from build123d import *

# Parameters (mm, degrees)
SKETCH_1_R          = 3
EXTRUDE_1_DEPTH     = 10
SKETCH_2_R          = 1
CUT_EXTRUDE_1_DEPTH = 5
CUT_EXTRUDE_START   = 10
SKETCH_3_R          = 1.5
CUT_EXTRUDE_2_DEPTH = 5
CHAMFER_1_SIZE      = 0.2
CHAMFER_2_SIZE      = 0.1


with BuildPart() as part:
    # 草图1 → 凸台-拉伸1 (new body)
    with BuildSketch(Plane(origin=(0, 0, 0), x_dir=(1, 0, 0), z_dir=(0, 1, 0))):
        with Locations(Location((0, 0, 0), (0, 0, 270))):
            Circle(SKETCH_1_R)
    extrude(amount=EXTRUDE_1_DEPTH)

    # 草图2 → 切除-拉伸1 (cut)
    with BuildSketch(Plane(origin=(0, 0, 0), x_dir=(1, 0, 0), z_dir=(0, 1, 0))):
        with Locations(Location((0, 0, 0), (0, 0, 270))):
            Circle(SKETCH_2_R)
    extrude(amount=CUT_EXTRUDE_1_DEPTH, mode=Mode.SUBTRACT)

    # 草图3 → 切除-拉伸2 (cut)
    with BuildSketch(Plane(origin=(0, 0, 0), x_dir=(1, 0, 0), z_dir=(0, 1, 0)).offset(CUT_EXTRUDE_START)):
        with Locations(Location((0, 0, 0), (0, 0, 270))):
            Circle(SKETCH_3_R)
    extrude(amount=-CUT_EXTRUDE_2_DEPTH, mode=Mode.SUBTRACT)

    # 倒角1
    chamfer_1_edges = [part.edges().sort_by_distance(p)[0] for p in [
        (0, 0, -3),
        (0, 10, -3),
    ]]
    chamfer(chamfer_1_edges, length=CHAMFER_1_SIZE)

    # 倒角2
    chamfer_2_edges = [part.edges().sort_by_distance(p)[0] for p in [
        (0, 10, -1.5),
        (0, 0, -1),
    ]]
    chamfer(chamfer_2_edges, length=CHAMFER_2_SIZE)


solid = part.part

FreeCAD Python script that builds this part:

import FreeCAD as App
import Part
import Sketcher


def edges_at(feature, points):
    """Names of the edges that pass closest to the given points."""
    edges = feature.Shape.Edges
    near = lambda p: min(range(len(edges)), key=lambda i: edges[i].distToShape(Part.Vertex(*p))[0])
    return sorted({f"Edge{near(p) + 1}" for p in points})

doc = App.newDocument("Part")
body = doc.addObject("PartDesign::Body", "Body")

# Sketch on XZ plane
sketch1 = body.newObject("Sketcher::SketchObject", "Sketch")
sketch1.AttachmentSupport = (doc.getObject("XZ_Plane"), [""])
sketch1.MapMode = "FlatFace"
sketch1.addGeometry(Part.Circle(App.Vector(0, 0, 0), App.Vector(0, 0, 1), 3), False)
sketch1.addConstraint(Sketcher.Constraint("Coincident", 0, 3, -1, 1))
sketch1.addConstraint(Sketcher.Constraint("Diameter", 0, 6.0))
pad1 = body.newObject("PartDesign::Pad", "Pad")
pad1.Profile = sketch1
pad1.Length = 10
pad1.Reversed = True

# Sketch on XZ plane
sketch2 = body.newObject("Sketcher::SketchObject", "Sketch001")
sketch2.AttachmentSupport = (doc.getObject("XZ_Plane"), [""])
sketch2.MapMode = "FlatFace"
sketch2.addGeometry(Part.Circle(App.Vector(0, 0, 0), App.Vector(0, 0, 1), 1), False)
sketch2.addConstraint(Sketcher.Constraint("Coincident", 0, 3, -1, 1))
sketch2.addConstraint(Sketcher.Constraint("Diameter", 0, 2.0))
pocket1 = body.newObject("PartDesign::Pocket", "Pocket")
pocket1.Profile = sketch2
pocket1.Length = 5

# Sketch on XZ plane
sketch3 = body.newObject("Sketcher::SketchObject", "Sketch002")
sketch3.AttachmentSupport = (doc.getObject("XZ_Plane"), [""])
sketch3.MapMode = "FlatFace"
sketch3.AttachmentOffset = App.Placement(App.Vector(0, 0, -10), App.Rotation())
sketch3.addGeometry(Part.Circle(App.Vector(0, 0, 0), App.Vector(0, 0, 1), 1.5), False)
sketch3.addConstraint(Sketcher.Constraint("Coincident", 0, 3, -1, 1))
sketch3.addConstraint(Sketcher.Constraint("Diameter", 0, 3.0))
pocket2 = body.newObject("PartDesign::Pocket", "Pocket001")
pocket2.Profile = sketch3
pocket2.Length = 5
pocket2.Reversed = True
doc.recompute()

chamfer = body.newObject("PartDesign::Chamfer", "Chamfer")
chamfer.Base = (pocket2, edges_at(pocket2, [(0, 0, -3), (0, 10, -3)]))
chamfer.Size = 0.2
doc.recompute()

chamfer2 = body.newObject("PartDesign::Chamfer", "Chamfer001")
chamfer2.Base = (chamfer, edges_at(chamfer, [(0, 10, -1.5), (0, 0, -1)]))
chamfer2.Size = 0.1

doc.recompute()
